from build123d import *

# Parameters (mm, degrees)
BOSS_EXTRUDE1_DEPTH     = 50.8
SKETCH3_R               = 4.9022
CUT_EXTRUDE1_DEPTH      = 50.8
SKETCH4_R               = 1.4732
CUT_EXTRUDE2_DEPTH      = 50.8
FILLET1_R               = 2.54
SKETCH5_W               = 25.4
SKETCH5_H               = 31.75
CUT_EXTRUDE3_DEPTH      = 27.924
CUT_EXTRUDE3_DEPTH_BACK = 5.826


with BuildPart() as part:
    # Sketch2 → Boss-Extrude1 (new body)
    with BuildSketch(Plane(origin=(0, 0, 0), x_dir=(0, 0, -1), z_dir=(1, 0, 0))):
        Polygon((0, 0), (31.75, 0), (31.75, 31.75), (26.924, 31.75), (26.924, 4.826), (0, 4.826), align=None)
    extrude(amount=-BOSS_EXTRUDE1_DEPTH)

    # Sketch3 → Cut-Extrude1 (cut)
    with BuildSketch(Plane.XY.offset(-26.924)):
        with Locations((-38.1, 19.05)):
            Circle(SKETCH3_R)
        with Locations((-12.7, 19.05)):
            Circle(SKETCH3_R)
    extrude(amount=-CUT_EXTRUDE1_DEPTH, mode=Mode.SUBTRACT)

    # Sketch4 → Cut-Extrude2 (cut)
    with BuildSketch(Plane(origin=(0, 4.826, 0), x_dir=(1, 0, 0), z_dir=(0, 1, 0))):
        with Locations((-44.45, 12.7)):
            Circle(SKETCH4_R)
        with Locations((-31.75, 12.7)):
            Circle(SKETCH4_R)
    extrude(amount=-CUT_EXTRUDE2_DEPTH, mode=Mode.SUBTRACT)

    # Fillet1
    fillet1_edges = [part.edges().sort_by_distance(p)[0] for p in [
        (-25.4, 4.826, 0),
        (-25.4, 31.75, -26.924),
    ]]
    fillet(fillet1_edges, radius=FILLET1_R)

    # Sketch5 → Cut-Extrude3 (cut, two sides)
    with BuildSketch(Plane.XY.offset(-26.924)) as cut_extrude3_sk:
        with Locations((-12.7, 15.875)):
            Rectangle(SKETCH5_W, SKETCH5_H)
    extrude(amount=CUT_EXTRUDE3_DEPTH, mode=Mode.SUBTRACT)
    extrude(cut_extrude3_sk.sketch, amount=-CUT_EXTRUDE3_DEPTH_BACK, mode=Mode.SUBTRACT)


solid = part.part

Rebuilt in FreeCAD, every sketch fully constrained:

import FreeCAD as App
import Part
import Sketcher
from FreeCAD import Vector
Q = App.Units.Quantity


def edges_at(feature, points):
    """Names of the edges that pass closest to the given points."""
    edges = feature.Shape.Edges
    near = lambda p: min(range(len(edges)), key=lambda i: edges[i].distToShape(Part.Vertex(*p))[0])
    return sorted({f"Edge{near(p) + 1}" for p in points})


def add_polygon(sketch, points):
    """Adds a closed chain of lines whose ends are joined by coincident constraints."""
    first, n = sketch.GeometryCount, len(points)
    for a, b in zip(points, points[1:] + points[:1]):
        sketch.addGeometry(Part.LineSegment(App.Vector(*a, 0), App.Vector(*b, 0)), False)
    for i in range(n):
        sketch.addConstraint(Sketcher.Constraint("Coincident", first + i, 2, first + (i + 1) % n, 1))

doc = App.newDocument("Part")
body = doc.addObject("PartDesign::Body", "Body")

# Sketch on YZ plane
sketch1 = body.newObject("Sketcher::SketchObject", "Sketch")
sketch1.AttachmentSupport = (doc.getObject("YZ_Plane"), [""])
sketch1.MapMode = "FlatFace"
add_polygon(sketch1, [(0, 0), (0, -31.8), (31.8, -31.8), (31.8, -26.9), (4.8, -26.9), (4.8, 0)])  # lines 0-5
sketch1.addConstraint([
    Sketcher.Constraint("Vertical", 0),
    Sketcher.Constraint("Horizontal", 1),
    Sketcher.Constraint("Vertical", 2),
    Sketcher.Constraint("Horizontal", 3),
    Sketcher.Constraint("Vertical", 4),
    Sketcher.Constraint("Horizontal", 5),
    Sketcher.Constraint("Coincident", 5, 2, -1, 1),
    Sketcher.Constraint("Equal", 1, 0),
    Sketcher.Constraint("Equal", 5, 2),
    Sketcher.Constraint("DistanceX", 1, 1, 1, 2, Q("1.25 in")),
    Sketcher.Constraint("DistanceX", 3, 2, 3, 1, Q("1.06 in")),
])
pad1 = body.newObject("PartDesign::Pad", "Pad")
pad1.Profile = sketch1
pad1.Length = Q("2 in")
pad1.Reversed = True

# Sketch on XY plane
sketch2 = body.newObject("Sketcher::SketchObject", "Sketch001")
sketch2.AttachmentSupport = (doc.getObject("XY_Plane"), [""])
sketch2.MapMode = "FlatFace"
sketch2.AttachmentOffset = App.Placement(Vector(0, 0, -1.06 * 25.4), App.Rotation())
sketch2.addGeometry([
    Part.Circle(Vector(-38.1, 19.1, 0), Vector(0, 0, 1), 4.9),
    Part.Circle(Vector(-12.7, 19.1, 0), Vector(0, 0, 1), 4.9),
], False)
sketch2.addConstraint([
    Sketcher.Constraint("Equal", 0, 1),
    Sketcher.Constraint("Horizontal", 0, 3, 1, 3),
    Sketcher.Constraint("Diameter", 0, Q("0.386 in")),
    Sketcher.Constraint("DistanceX", 0, 3, 1, 3, Q("1 in")),
    Sketcher.Constraint("DistanceX", 0, 3, -1, 1, Q("1.5 in")),
    Sketcher.Constraint("DistanceY", -1, 1, 0, 3, Q("0.75 in")),
])
pocket1 = body.newObject("PartDesign::Pocket", "Pocket")
pocket1.Profile = sketch2
pocket1.Length = Q("2 in")

# Sketch on XZ plane
sketch3 = body.newObject("Sketcher::SketchObject", "Sketch002")
sketch3.AttachmentSupport = (doc.getObject("XZ_Plane"), [""])
sketch3.MapMode = "FlatFace"
sketch3.AttachmentOffset = App.Placement(Vector(0, 0, -0.19 * 25.4), App.Rotation())
sketch3.addGeometry([
    Part.Circle(Vector(-44.5, -12.7, 0), Vector(0, 0, 1), 1.5),
    Part.Circle(Vector(-31.8, -12.7, 0), Vector(0, 0, 1), 1.5),
], False)
sketch3.addConstraint([
    Sketcher.Constraint("Equal", 0, 1),
    Sketcher.Constraint("Horizontal", 0, 3, 1, 3),
    Sketcher.Constraint("Diameter", 0, Q("0.116 in")),
    Sketcher.Constraint("DistanceY", 0, 3, -1, 1, Q("0.5 in")),
    Sketcher.Constraint("DistanceX", 0, 3, 1, 3, Q("0.5 in")),
    Sketcher.Constraint("DistanceX", 0, 3, -1, 1, Q("1.75 in")),
])
pocket2 = body.newObject("PartDesign::Pocket", "Pocket001")
pocket2.Profile = sketch3
pocket2.Length = Q("2 in")
pocket2.Reversed = True
doc.recompute()

fillet = body.newObject("PartDesign::Fillet", "Fillet")
fillet.Base = (pocket2, edges_at(pocket2, [(-25.4, 4.826, 0), (-25.4, 31.75, -26.924)]))
fillet.Radius = Q("0.1 in")

# Sketch on XY plane
sketch4 = body.newObject("Sketcher::SketchObject", "Sketch003")
sketch4.AttachmentSupport = (doc.getObject("XY_Plane"), [""])
sketch4.MapMode = "FlatFace"
sketch4.AttachmentOffset = App.Placement(Vector(0, 0, -1.06 * 25.4), App.Rotation())
add_polygon(sketch4, [(-25, 32), (-25, 0), (0, 0), (0, 32)])  # lines 0-3
sketch4.addConstraint([
    Sketcher.Constraint("Vertical", 0),
    Sketcher.Constraint("Horizontal", 1),
    Sketcher.Constraint("Vertical", 2),
    Sketcher.Constraint("Horizontal", 3),
    Sketcher.Constraint("Coincident", 1, 2, -1, 1),
    Sketcher.Constraint("DistanceX", 1, 1, 1, 2, Q("1 in")),
    Sketcher.Constraint("DistanceY", 0, 2, 0, 1, Q("1.25 in")),
])
pocket3 = body.newObject("PartDesign::Pocket", "Pocket002")
pocket3.Profile = sketch4
pocket3.Type = "ThroughAll"
pocket3.Midplane = True

doc.recompute()
